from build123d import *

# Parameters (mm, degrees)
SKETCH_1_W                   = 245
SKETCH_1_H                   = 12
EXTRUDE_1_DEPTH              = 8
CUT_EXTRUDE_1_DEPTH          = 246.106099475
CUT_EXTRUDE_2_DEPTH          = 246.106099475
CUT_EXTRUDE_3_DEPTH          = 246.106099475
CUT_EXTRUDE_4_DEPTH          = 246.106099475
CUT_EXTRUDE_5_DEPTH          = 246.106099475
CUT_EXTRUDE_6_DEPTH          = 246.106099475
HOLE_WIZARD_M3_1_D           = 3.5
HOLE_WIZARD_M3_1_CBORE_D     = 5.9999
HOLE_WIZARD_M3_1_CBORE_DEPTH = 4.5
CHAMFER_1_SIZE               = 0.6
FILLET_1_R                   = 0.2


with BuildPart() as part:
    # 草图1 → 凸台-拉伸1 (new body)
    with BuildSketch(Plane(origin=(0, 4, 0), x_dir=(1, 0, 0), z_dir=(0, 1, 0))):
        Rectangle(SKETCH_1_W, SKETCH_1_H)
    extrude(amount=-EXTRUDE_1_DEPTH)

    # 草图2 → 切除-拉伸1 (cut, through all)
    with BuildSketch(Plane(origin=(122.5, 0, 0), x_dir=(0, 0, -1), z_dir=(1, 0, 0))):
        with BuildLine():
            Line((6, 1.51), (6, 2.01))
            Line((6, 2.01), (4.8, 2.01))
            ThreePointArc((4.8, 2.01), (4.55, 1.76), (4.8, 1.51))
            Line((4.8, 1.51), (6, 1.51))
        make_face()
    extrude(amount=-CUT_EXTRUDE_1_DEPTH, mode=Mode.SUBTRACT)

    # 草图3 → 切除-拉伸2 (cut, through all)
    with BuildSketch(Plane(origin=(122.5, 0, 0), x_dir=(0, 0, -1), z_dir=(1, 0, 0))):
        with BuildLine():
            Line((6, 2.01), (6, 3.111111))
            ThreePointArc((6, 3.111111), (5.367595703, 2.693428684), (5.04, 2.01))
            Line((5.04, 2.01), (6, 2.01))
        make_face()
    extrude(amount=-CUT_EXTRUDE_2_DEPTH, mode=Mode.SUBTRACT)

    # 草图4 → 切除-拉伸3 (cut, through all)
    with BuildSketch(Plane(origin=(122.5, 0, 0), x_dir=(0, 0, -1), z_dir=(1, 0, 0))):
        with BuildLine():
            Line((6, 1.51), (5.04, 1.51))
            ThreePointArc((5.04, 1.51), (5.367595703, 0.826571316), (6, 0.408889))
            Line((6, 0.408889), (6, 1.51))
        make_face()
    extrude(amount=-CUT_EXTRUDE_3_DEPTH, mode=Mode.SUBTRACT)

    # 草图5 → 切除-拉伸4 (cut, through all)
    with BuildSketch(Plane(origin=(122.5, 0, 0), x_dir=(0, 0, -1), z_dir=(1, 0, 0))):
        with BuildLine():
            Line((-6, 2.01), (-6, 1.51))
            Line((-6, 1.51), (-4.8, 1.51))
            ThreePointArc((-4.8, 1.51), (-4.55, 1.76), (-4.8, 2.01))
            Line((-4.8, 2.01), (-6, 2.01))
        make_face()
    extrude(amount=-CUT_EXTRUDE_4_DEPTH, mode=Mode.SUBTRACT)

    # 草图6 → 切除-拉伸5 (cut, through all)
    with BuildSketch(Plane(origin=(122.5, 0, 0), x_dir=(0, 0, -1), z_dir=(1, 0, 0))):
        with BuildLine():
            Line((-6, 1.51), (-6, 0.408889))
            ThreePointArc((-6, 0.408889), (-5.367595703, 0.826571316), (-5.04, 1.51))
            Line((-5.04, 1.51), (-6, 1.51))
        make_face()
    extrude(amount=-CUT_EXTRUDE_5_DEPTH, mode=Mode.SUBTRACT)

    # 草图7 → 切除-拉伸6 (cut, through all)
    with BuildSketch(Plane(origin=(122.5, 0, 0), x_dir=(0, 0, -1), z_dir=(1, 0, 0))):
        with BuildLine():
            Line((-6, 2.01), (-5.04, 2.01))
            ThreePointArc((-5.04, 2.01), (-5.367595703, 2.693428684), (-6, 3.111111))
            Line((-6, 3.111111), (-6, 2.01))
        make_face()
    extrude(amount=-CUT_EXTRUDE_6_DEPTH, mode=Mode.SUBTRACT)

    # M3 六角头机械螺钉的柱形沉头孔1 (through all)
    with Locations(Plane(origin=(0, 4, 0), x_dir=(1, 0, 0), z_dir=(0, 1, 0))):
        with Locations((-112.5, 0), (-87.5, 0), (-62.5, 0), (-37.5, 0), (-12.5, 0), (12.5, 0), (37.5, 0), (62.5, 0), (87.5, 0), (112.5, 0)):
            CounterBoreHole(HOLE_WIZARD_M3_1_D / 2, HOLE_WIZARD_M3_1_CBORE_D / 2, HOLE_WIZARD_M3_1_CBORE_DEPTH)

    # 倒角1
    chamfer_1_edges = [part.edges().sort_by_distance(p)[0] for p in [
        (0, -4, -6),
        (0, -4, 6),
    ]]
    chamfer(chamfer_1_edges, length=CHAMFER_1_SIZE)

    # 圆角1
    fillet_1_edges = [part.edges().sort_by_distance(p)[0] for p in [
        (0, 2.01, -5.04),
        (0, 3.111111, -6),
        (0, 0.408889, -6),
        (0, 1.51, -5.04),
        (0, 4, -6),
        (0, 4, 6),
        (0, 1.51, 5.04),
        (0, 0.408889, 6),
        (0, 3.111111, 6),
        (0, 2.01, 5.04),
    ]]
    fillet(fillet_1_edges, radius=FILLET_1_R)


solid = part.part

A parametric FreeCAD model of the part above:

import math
import FreeCAD as App
import Part
import Sketcher
Q = App.Units.Quantity


def edges_at(feature, points):
    """Names of the edges that pass closest to the given points."""
    edges = feature.Shape.Edges
    near = lambda p: min(range(len(edges)), key=lambda i: edges[i].distToShape(Part.Vertex(*p))[0])
    return sorted({f"Edge{near(p) + 1}" for p in points})


def add_polygon(sketch, points):
    """Adds a closed chain of lines whose ends are joined by coincident constraints."""
    first, n = sketch.GeometryCount, len(points)
    for a, b in zip(points, points[1:] + points[:1]):
        sketch.addGeometry(Part.LineSegment(App.Vector(*a, 0), App.Vector(*b, 0)), False)
    for i in range(n):
        sketch.addConstraint(Sketcher.Constraint("Coincident", first + i, 2, first + (i + 1) % n, 1))

doc = App.newDocument("Part")
body = doc.addObject("PartDesign::Body", "Body")

# Sketch on XZ plane
sketch1 = doc.addObject("Sketcher::SketchObject", "Sketch")
body.addObject(sketch1)
sketch1.AttachmentSupport = (doc.XZ_Plane, [""])
sketch1.MapMode = "FlatFace"
sketch1.AttachmentOffset = App.Placement(App.Vector(0, 0, -4), App.Rotation())
add_polygon(sketch1, [(-122.5, -6), (-122.5, 6), (122.5, 6), (122.5, -6)])  # lines 0-3
sketch1.addConstraint(Sketcher.Constraint("Vertical", 0))
sketch1.addConstraint(Sketcher.Constraint("Horizontal", 1))
sketch1.addConstraint(Sketcher.Constraint("Vertical", 2))
sketch1.addConstraint(Sketcher.Constraint("Horizontal", 3))
sketch1.addConstraint(Sketcher.Constraint("Symmetric", 0, 2, 2, 2, -1, 1))
sketch1.addConstraint(Sketcher.Constraint("DistanceX", 1, 1, 1, 2, Q("245 mm")))
sketch1.addConstraint(Sketcher.Constraint("DistanceY", 0, 1, 0, 2, Q("12 mm")))
pad1 = doc.addObject("PartDesign::Pad", "Pad")
body.addObject(pad1)
pad1.Profile = sketch1
pad1.Length = 8

# Sketch on YZ plane
sketch2 = doc.addObject("Sketcher::SketchObject", "Sketch001")
body.addObject(sketch2)
sketch2.AttachmentSupport = (doc.YZ_Plane, [""])
sketch2.MapMode = "FlatFace"
sketch2.AttachmentOffset = App.Placement(App.Vector(0, 0, 122.5), App.Rotation())
sketch2.addGeometry(Part.LineSegment(App.Vector(1.51, -6, 0), App.Vector(2.01, -6, 0)), False)
sketch2.addGeometry(Part.LineSegment(App.Vector(2.01, -6, 0), App.Vector(2.01, -4.8, 0)), False)
sketch2.addGeometry(Part.ArcOfCircle(Part.Circle(App.Vector(1.76, -4.8, 0), App.Vector(0, 0, 1), 0.25), math.radians(0), math.radians(180)), False)
sketch2.addGeometry(Part.LineSegment(App.Vector(1.51, -4.8, 0), App.Vector(1.51, -6, 0)), False)
sketch2.addConstraint(Sketcher.Constraint("Coincident", 0, 2, 1, 1))
sketch2.addConstraint(Sketcher.Constraint("Tangent", 1, 2, 2, 1))
sketch2.addConstraint(Sketcher.Constraint("Tangent", 2, 2, 3, 1))
sketch2.addConstraint(Sketcher.Constraint("Coincident", 3, 2, 0, 1))
sketch2.addConstraint(Sketcher.Constraint("Horizontal", 0))
sketch2.addConstraint(Sketcher.Constraint("Vertical", 1))
sketch2.addConstraint(Sketcher.Constraint("Vertical", 3))
sketch2.addConstraint(Sketcher.Constraint("Radius", 2, Q("0.25 mm")))
sketch2.addConstraint(Sketcher.Constraint("DistanceY", 1, 1, 1, 2, Q("1.2 mm")))
sketch2.addConstraint(Sketcher.Constraint("DistanceY", 0, 2, -1, 1, Q("6 mm")))
sketch2.addConstraint(Sketcher.Constraint("DistanceX", -1, 1, 2, 3, Q("1.76 mm")))
pocket1 = doc.addObject("PartDesign::Pocket", "Pocket")
body.addObject(pocket1)
pocket1.Profile = sketch2
pocket1.Type = "ThroughAll"

# Sketch on YZ plane
sketch3 = doc.addObject("Sketcher::SketchObject", "Sketch002")
body.addObject(sketch3)
sketch3.AttachmentSupport = (doc.YZ_Plane, [""])
sketch3.MapMode = "FlatFace"
sketch3.AttachmentOffset = App.Placement(App.Vector(0, 0, 122.5), App.Rotation())
sketch3.addGeometry(Part.LineSegment(App.Vector(2.01, -6, 0), App.Vector(3.111111, -6, 0)), False)
sketch3.addGeometry(Part.ArcOfCircle(Part.Circle(App.Vector(1.76, -6.43823, 0), App.Vector(0, 0, 1), 1.420404), math.radians(17.970348), math.radians(79.862775)), False)
sketch3.addGeometry(Part.LineSegment(App.Vector(2.01, -5.04, 0), App.Vector(2.01, -6, 0)), False)
sketch3.addConstraint(Sketcher.Constraint("Coincident", 0, 2, 1, 1))
sketch3.addConstraint(Sketcher.Constraint("Coincident", 1, 2, 2, 1))
sketch3.addConstraint(Sketcher.Constraint("Coincident", 2, 2, 0, 1))
sketch3.addConstraint(Sketcher.Constraint("Horizontal", 0))
sketch3.addConstraint(Sketcher.Constraint("Vertical", 2))
sketch3.addConstraint(Sketcher.Constraint("DistanceY", 0, 2, -1, 1, Q("6 mm")))
sketch3.addConstraint(Sketcher.Constraint("DistanceY", 2, 2, 2, 1, Q("0.96 mm")))
sketch3.addConstraint(Sketcher.Constraint("DistanceX", -1, 1, 1, 3, Q("1.76 mm")))
sketch3.addConstraint(Sketcher.Constraint("DistanceX", -1, 1, 1, 2, Q("2.01 mm")))
sketch3.addConstraint(Sketcher.Constraint("Radius", 1, Q("1.420404 mm")))
pocket2 = doc.addObject("PartDesign::Pocket", "Pocket001")
body.addObject(pocket2)
pocket2.Profile = sketch3
pocket2.Type = "ThroughAll"

# Sketch on YZ plane
sketch4 = doc.addObject("Sketcher::SketchObject", "Sketch003")
body.addObject(sketch4)
sketch4.AttachmentSupport = (doc.YZ_Plane, [""])
sketch4.MapMode = "FlatFace"
sketch4.AttachmentOffset = App.Placement(App.Vector(0, 0, 122.5), App.Rotation())
sketch4.addGeometry(Part.LineSegment(App.Vector(1.51, -6, 0), App.Vector(1.51, -5.04, 0)), False)
sketch4.addGeometry(Part.ArcOfCircle(Part.Circle(App.Vector(1.76, -6.43823, 0), App.Vector(0, 0, 1), 1.420404), math.radians(100.137225), math.radians(162.029652)), False)
sketch4.addGeometry(Part.LineSegment(App.Vector(0.408889, -6, 0), App.Vector(1.51, -6, 0)), False)
sketch4.addConstraint(Sketcher.Constraint("Coincident", 0, 2, 1, 1))
sketch4.addConstraint(Sketcher.Constraint("Coincident", 1, 2, 2, 1))
sketch4.addConstraint(Sketcher.Constraint("Coincident", 2, 2, 0, 1))
sketch4.addConstraint(Sketcher.Constraint("Vertical", 0))
sketch4.addConstraint(Sketcher.Constraint("Horizontal", 2))
sketch4.addConstraint(Sketcher.Constraint("DistanceY", 1, 2, -1, 1, Q("6 mm")))
sketch4.addConstraint(Sketcher.Constraint("DistanceY", 0, 1, 0, 2, Q("0.96 mm")))
sketch4.addConstraint(Sketcher.Constraint("DistanceX", -1, 1, 1, 3, Q("1.76 mm")))
sketch4.addConstraint(Sketcher.Constraint("DistanceX", -1, 1, 0, 2, Q("1.51 mm")))
sketch4.addConstraint(Sketcher.Constraint("Radius", 1, Q("1.420404 mm")))
pocket3 = doc.addObject("PartDesign::Pocket", "Pocket002")
body.addObject(pocket3)
pocket3.Profile = sketch4
pocket3.Type = "ThroughAll"

# Sketch on YZ plane
sketch5 = doc.addObject("Sketcher::SketchObject", "Sketch004")
body.addObject(sketch5)
sketch5.AttachmentSupport = (doc.YZ_Plane, [""])
sketch5.MapMode = "FlatFace"
sketch5.AttachmentOffset = App.Placement(App.Vector(0, 0, 122.5), App.Rotation())
sketch5.addGeometry(Part.LineSegment(App.Vector(2.01, 6, 0), App.Vector(1.51, 6, 0)), False)
sketch5.addGeometry(Part.LineSegment(App.Vector(1.51, 6, 0), App.Vector(1.51, 4.8, 0)), False)
sketch5.addGeometry(Part.ArcOfCircle(Part.Circle(App.Vector(1.76, 4.8, 0), App.Vector(0, 0, 1), 0.25), math.radians(180), math.radians(360)), False)
sketch5.addGeometry(Part.LineSegment(App.Vector(2.01, 4.8, 0), App.Vector(2.01, 6, 0)), False)
sketch5.addConstraint(Sketcher.Constraint("Coincident", 0, 2, 1, 1))
sketch5.addConstraint(Sketcher.Constraint("Tangent", 1, 2, 2, 1))
sketch5.addConstraint(Sketcher.Constraint("Tangent", 2, 2, 3, 1))
sketch5.addConstraint(Sketcher.Constraint("Coincident", 3, 2, 0, 1))
sketch5.addConstraint(Sketcher.Constraint("Horizontal", 0))
sketch5.addConstraint(Sketcher.Constraint("Vertical", 1))
sketch5.addConstraint(Sketcher.Constraint("Vertical", 3))
sketch5.addConstraint(Sketcher.Constraint("Radius", 2, Q("0.25 mm")))
sketch5.addConstraint(Sketcher.Constraint("DistanceY", 1, 2, 1, 1, Q("1.2 mm")))
sketch5.addConstraint(Sketcher.Constraint("DistanceY", -1, 1, 0, 2, Q("6 mm")))
sketch5.addConstraint(Sketcher.Constraint("DistanceX", -1, 1, 2, 3, Q("1.76 mm")))
pocket4 = doc.addObject("PartDesign::Pocket", "Pocket003")
body.addObject(pocket4)
pocket4.Profile = sketch5
pocket4.Type = "ThroughAll"

# Sketch on YZ plane
sketch6 = doc.addObject("Sketcher::SketchObject", "Sketch005")
body.addObject(sketch6)
sketch6.AttachmentSupport = (doc.YZ_Plane, [""])
sketch6.MapMode = "FlatFace"
sketch6.AttachmentOffset = App.Placement(App.Vector(0, 0, 122.5), App.Rotation())
sketch6.addGeometry(Part.LineSegment(App.Vector(1.51, 6, 0), App.Vector(0.408889, 6, 0)), False)
sketch6.addGeometry(Part.ArcOfCircle(Part.Circle(App.Vector(1.76, 6.43823, 0), App.Vector(0, 0, 1), 1.420404), math.radians(-162.029652), math.radians(-100.137225)), False)
sketch6.addGeometry(Part.LineSegment(App.Vector(1.51, 5.04, 0), App.Vector(1.51, 6, 0)), False)
sketch6.addConstraint(Sketcher.Constraint("Coincident", 0, 2, 1, 1))
sketch6.addConstraint(Sketcher.Constraint("Coincident", 1, 2, 2, 1))
sketch6.addConstraint(Sketcher.Constraint("Coincident", 2, 2, 0, 1))
sketch6.addConstraint(Sketcher.Constraint("Horizontal", 0))
sketch6.addConstraint(Sketcher.Constraint("Vertical", 2))
sketch6.addConstraint(Sketcher.Constraint("DistanceY", -1, 1, 0, 2, Q("6 mm")))
sketch6.addConstraint(Sketcher.Constraint("DistanceY", 2, 1, 2, 2, Q("0.96 mm")))
sketch6.addConstraint(Sketcher.Constraint("DistanceX", -1, 1, 1, 3, Q("1.76 mm")))
sketch6.addConstraint(Sketcher.Constraint("DistanceX", -1, 1, 1, 2, Q("1.51 mm")))
sketch6.addConstraint(Sketcher.Constraint("Radius", 1, Q("1.420404 mm")))
pocket5 = doc.addObject("PartDesign::Pocket", "Pocket004")
body.addObject(pocket5)
pocket5.Profile = sketch6
pocket5.Type = "ThroughAll"

# Sketch on YZ plane
sketch7 = doc.addObject("Sketcher::SketchObject", "Sketch006")
body.addObject(sketch7)
sketch7.AttachmentSupport = (doc.YZ_Plane, [""])
sketch7.MapMode = "FlatFace"
sketch7.AttachmentOffset = App.Placement(App.Vector(0, 0, 122.5), App.Rotation())
sketch7.addGeometry(Part.LineSegment(App.Vector(2.01, 6, 0), App.Vector(2.01, 5.04, 0)), False)
sketch7.addGeometry(Part.ArcOfCircle(Part.Circle(App.Vector(1.76, 6.43823, 0), App.Vector(0, 0, 1), 1.420404), math.radians(-79.862775), math.radians(-17.970348)), False)
sketch7.addGeometry(Part.LineSegment(App.Vector(3.111111, 6, 0), App.Vector(2.01, 6, 0)), False)
sketch7.addConstraint(Sketcher.Constraint("Coincident", 0, 2, 1, 1))
sketch7.addConstraint(Sketcher.Constraint("Coincident", 1, 2, 2, 1))
sketch7.addConstraint(Sketcher.Constraint("Coincident", 2, 2, 0, 1))
sketch7.addConstraint(Sketcher.Constraint("Vertical", 0))
sketch7.addConstraint(Sketcher.Constraint("Horizontal", 2))
sketch7.addConstraint(Sketcher.Constraint("DistanceY", -1, 1, 1, 2, Q("6 mm")))
sketch7.addConstraint(Sketcher.Constraint("DistanceY", 0, 2, 0, 1, Q("0.96 mm")))
sketch7.addConstraint(Sketcher.Constraint("DistanceX", -1, 1, 1, 3, Q("1.76 mm")))
sketch7.addConstraint(Sketcher.Constraint("DistanceX", -1, 1, 0, 2, Q("2.01 mm")))
sketch7.addConstraint(Sketcher.Constraint("Radius", 1, Q("1.420404 mm")))
pocket6 = doc.addObject("PartDesign::Pocket", "Pocket005")
body.addObject(pocket6)
pocket6.Profile = sketch7
pocket6.Type = "ThroughAll"

# Sketch on XZ plane
sketch8 = doc.addObject("Sketcher::SketchObject", "Sketch007")
body.addObject(sketch8)
sketch8.AttachmentSupport = (doc.XZ_Plane, [""])
sketch8.MapMode = "FlatFace"
sketch8.AttachmentOffset = App.Placement(App.Vector(0, 0, -4), App.Rotation())
sketch8.addGeometry(Part.Circle(App.Vector(-112.5, 0, 0), App.Vector(0, 0, 1), 1.75), False)
sketch8.addGeometry(Part.Circle(App.Vector(-87.5, 0, 0), App.Vector(0, 0, 1), 1.75), False)
sketch8.addGeometry(Part.Circle(App.Vector(-62.5, 0, 0), App.Vector(0, 0, 1), 1.75), False)
sketch8.addGeometry(Part.Circle(App.Vector(-37.5, 0, 0), App.Vector(0, 0, 1), 1.75), False)
sketch8.addGeometry(Part.Circle(App.Vector(-12.5, 0, 0), App.Vector(0, 0, 1), 1.75), False)
sketch8.addGeometry(Part.Circle(App.Vector(12.5, 0, 0), App.Vector(0, 0, 1), 1.75), False)
sketch8.addGeometry(Part.Circle(App.Vector(37.5, 0, 0), App.Vector(0, 0, 1), 1.75), False)
sketch8.addGeometry(Part.Circle(App.Vector(62.5, 0, 0), App.Vector(0, 0, 1), 1.75), False)
sketch8.addGeometry(Part.Circle(App.Vector(87.5, 0, 0), App.Vector(0, 0, 1), 1.75), False)
sketch8.addGeometry(Part.Circle(App.Vector(112.5, 0, 0), App.Vector(0, 0, 1), 1.75), False)
sketch8.addConstraint(Sketcher.Constraint("Equal", 0, 1))
sketch8.addConstraint(Sketcher.Constraint("Equal", 1, 2))
sketch8.addConstraint(Sketcher.Constraint("Equal", 2, 3))
sketch8.addConstraint(Sketcher.Constraint("Equal", 3, 4))
sketch8.addConstraint(Sketcher.Constraint("Equal", 4, 5))
sketch8.addConstraint(Sketcher.Constraint("Equal", 5, 6))
sketch8.addConstraint(Sketcher.Constraint("Equal", 6, 7))
sketch8.addConstraint(Sketcher.Constraint("Equal", 7, 8))
sketch8.addConstraint(Sketcher.Constraint("Equal", 8, 9))
sketch8.addConstraint(Sketcher.Constraint("Symmetric", 4, 3, 5, 3, -1, 1))
sketch8.addConstraint(Sketcher.Constraint("Symmetric", 3, 3, 6, 3, -1, 1))
sketch8.addConstraint(Sketcher.Constraint("Symmetric", 2, 3, 7, 3, -1, 1))
sketch8.addConstraint(Sketcher.Constraint("Symmetric", 1, 3, 8, 3, -1, 1))
sketch8.addConstraint(Sketcher.Constraint("Symmetric", 0, 3, 9, 3, -1, 1))
sketch8.addConstraint(Sketcher.Constraint("PointOnObject", 0, 3, -1))
sketch8.addConstraint(Sketcher.Constraint("PointOnObject", 1, 3, -1))
sketch8.addConstraint(Sketcher.Constraint("PointOnObject", 2, 3, -1))
sketch8.addConstraint(Sketcher.Constraint("PointOnObject", 3, 3, -1))
sketch8.addConstraint(Sketcher.Constraint("PointOnObject", 4, 3, -1))
sketch8.addConstraint(Sketcher.Constraint("Diameter", 0, Q("3.5 mm")))
sketch8.addConstraint(Sketcher.Constraint("DistanceX", 0, 3, 1, 3, Q("25 mm")))
sketch8.addConstraint(Sketcher.Constraint("DistanceX", 1, 3, 2, 3, Q("25 mm")))
sketch8.addConstraint(Sketcher.Constraint("DistanceX", 2, 3, 3, 3, Q("25 mm")))
sketch8.addConstraint(Sketcher.Constraint("DistanceX", 3, 3, 4, 3, Q("25 mm")))
sketch8.addConstraint(Sketcher.Constraint("DistanceX", 4, 3, 5, 3, Q("25 mm")))
doc.recompute()
hole = doc.addObject("PartDesign::Hole", "Hole")
body.addObject(hole)
hole.Profile = sketch8
hole.ThreadType = "None"
hole.Diameter = 3.5
hole.DepthType = "ThroughAll"
hole.HoleCutType = "Counterbore"
hole.HoleCutDiameter = 5.9999
hole.HoleCutDepth = 4.5
hole.Reversed = True
doc.recompute()

chamfer = doc.addObject("PartDesign::Chamfer", "Chamfer")
body.addObject(chamfer)
chamfer.Base = (hole, edges_at(hole, [(0, -4, -6), (0, -4, 6)]))
chamfer.Size = 0.6
doc.recompute()

fillet = doc.addObject("PartDesign::Fillet", "Fillet")
body.addObject(fillet)
fillet.Base = (chamfer, edges_at(chamfer, [
    (0, 2.01, -5.04),
    (0, 3.111, -6),
    (0, 0.409, -6),
    (0, 1.51, -5.04),
    (0, 4, -6),
    (0, 4, 6),
    (0, 1.51, 5.04),
    (0, 0.409, 6),
    (0, 3.111, 6),
    (0, 2.01, 5.04),
]))
fillet.Radius = 0.2

doc.recompute()
